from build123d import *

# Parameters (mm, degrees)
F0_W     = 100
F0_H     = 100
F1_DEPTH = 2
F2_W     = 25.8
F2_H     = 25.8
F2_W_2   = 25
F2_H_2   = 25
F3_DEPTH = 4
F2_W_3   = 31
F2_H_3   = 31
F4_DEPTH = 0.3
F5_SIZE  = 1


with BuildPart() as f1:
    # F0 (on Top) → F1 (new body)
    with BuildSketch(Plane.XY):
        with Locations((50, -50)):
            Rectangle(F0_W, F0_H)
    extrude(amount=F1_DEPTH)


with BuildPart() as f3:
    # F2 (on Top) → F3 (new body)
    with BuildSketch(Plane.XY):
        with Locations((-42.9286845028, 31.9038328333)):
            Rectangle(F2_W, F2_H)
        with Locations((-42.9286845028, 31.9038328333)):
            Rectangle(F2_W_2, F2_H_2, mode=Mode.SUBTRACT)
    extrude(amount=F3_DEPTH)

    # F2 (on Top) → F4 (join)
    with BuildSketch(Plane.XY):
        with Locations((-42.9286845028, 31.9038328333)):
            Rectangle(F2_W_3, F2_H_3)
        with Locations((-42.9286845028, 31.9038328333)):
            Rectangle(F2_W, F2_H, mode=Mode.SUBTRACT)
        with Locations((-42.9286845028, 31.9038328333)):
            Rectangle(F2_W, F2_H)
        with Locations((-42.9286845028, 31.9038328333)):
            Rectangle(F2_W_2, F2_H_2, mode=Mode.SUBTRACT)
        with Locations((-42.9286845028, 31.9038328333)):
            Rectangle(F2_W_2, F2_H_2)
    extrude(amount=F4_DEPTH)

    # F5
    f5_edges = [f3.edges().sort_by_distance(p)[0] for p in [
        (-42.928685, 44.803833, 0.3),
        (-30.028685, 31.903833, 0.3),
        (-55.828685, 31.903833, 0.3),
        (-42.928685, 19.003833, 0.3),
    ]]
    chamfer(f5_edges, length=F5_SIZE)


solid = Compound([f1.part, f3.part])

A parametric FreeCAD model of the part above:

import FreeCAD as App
import Part
import Sketcher
Q = App.Units.Quantity


def edges_at(feature, points):
    """Names of the edges that pass closest to the given points."""
    edges = feature.Shape.Edges
    near = lambda p: min(range(len(edges)), key=lambda i: edges[i].distToShape(Part.Vertex(*p))[0])
    return sorted({f"Edge{near(p) + 1}" for p in points})


def add_polygon(sketch, points):
    """Adds a closed chain of lines whose ends are joined by coincident constraints."""
    first, n = sketch.GeometryCount, len(points)
    for a, b in zip(points, points[1:] + points[:1]):
        sketch.addGeometry(Part.LineSegment(App.Vector(*a, 0), App.Vector(*b, 0)), False)
    for i in range(n):
        sketch.addConstraint(Sketcher.Constraint("Coincident", first + i, 2, first + (i + 1) % n, 1))

doc = App.newDocument("Part")
body = doc.addObject("PartDesign::Body", "Body")

# Sketch on XY plane
sketch1 = doc.addObject("Sketcher::SketchObject", "Sketch")
body.addObject(sketch1)
sketch1.AttachmentSupport = (doc.XY_Plane, [""])
sketch1.MapMode = "FlatFace"
add_polygon(sketch1, [(0, 0), (0, -100), (100, -100), (100, 0)])  # lines 0-3
sketch1.addConstraint([
    Sketcher.Constraint("Vertical", 0),
    Sketcher.Constraint("Horizontal", 1),
    Sketcher.Constraint("Vertical", 2),
    Sketcher.Constraint("Horizontal", 3),
    Sketcher.Constraint("Coincident", 3, 2, -1, 1),
    Sketcher.Constraint("Equal", 3, 0),
    Sketcher.Constraint("DistanceX", 1, 1, 1, 2, Q("100 mm")),
])
pad1 = doc.addObject("PartDesign::Pad", "Pad")
body.addObject(pad1)
pad1.Profile = sketch1
pad1.Length = 2
body2 = doc.addObject("PartDesign::Body", "Body001")

# Sketch on XY plane
sketch2 = doc.addObject("Sketcher::SketchObject", "Sketch001")
body2.addObject(sketch2)
sketch2.AttachmentSupport = (doc.getObject("XY_Plane001"), [""])
sketch2.MapMode = "FlatFace"
add_polygon(sketch2, [(-56, 45), (-56, 19), (-30, 19), (-30, 45)])  # lines 0-3
add_polygon(sketch2, [(-30, 19), (-55, 19), (-55, 44), (-30, 44)])  # lines 4-7
sketch2.addConstraint([
    Sketcher.Constraint("Vertical", 0),
    Sketcher.Constraint("Horizontal", 1),
    Sketcher.Constraint("Vertical", 2),
    Sketcher.Constraint("Horizontal", 3),
    Sketcher.Constraint("Horizontal", 4),
    Sketcher.Constraint("Vertical", 5),
    Sketcher.Constraint("Horizontal", 6),
    Sketcher.Constraint("Vertical", 7),
    Sketcher.Constraint("Equal", 3, 0),
    Sketcher.Constraint("Equal", 6, 5),
    Sketcher.Constraint("DistanceX", 4, 2, 4, 1, Q("25 mm")),
    Sketcher.Constraint("DistanceX", 1, 1, 1, 2, Q("25.8 mm")),
    Sketcher.Constraint("DistanceX", 0, 2, 4, 2, Q("0.4 mm")),
    Sketcher.Constraint("DistanceY", 0, 2, 4, 2, Q("0.4 mm")),
    Sketcher.Constraint("DistanceX", 0, 2, -1, 1, Q("55.828685 mm")),
    Sketcher.Constraint("DistanceY", -1, 1, 0, 2, Q("19.003833 mm")),
])
pad2 = doc.addObject("PartDesign::Pad", "Pad001")
body2.addObject(pad2)
pad2.Profile = sketch2
pad2.Length = 4

# Sketch on XY plane
sketch3 = doc.addObject("Sketcher::SketchObject", "Sketch002")
body2.addObject(sketch3)
sketch3.AttachmentSupport = (doc.getObject("XY_Plane001"), [""])
sketch3.MapMode = "FlatFace"
add_polygon(sketch3, [(-58, 47), (-58, 16), (-27, 16), (-27, 47)])  # lines 0-3
sketch3.addConstraint([
    Sketcher.Constraint("Vertical", 0),
    Sketcher.Constraint("Horizontal", 1),
    Sketcher.Constraint("Vertical", 2),
    Sketcher.Constraint("Horizontal", 3),
    Sketcher.Constraint("Equal", 3, 0),
    Sketcher.Constraint("DistanceX", 1, 1, 1, 2, Q("31 mm")),
    Sketcher.Constraint("DistanceX", 0, 2, -1, 1, Q("58.428685 mm")),
    Sketcher.Constraint("DistanceY", -1, 1, 0, 2, Q("16.403833 mm")),
])
pad3 = doc.addObject("PartDesign::Pad", "Pad002")
body2.addObject(pad3)
pad3.Profile = sketch3
pad3.Length = 0.3
doc.recompute()

chamfer = doc.addObject("PartDesign::Chamfer", "Chamfer")
body2.addObject(chamfer)
chamfer.Base = (pad3, edges_at(pad3, [
    (-42.929, 44.804, 0.3),
    (-30.029, 31.904, 0.3),
    (-55.829, 31.904, 0.3),
    (-42.929, 19.004, 0.3),
]))
chamfer.Size = 1

doc.recompute()
